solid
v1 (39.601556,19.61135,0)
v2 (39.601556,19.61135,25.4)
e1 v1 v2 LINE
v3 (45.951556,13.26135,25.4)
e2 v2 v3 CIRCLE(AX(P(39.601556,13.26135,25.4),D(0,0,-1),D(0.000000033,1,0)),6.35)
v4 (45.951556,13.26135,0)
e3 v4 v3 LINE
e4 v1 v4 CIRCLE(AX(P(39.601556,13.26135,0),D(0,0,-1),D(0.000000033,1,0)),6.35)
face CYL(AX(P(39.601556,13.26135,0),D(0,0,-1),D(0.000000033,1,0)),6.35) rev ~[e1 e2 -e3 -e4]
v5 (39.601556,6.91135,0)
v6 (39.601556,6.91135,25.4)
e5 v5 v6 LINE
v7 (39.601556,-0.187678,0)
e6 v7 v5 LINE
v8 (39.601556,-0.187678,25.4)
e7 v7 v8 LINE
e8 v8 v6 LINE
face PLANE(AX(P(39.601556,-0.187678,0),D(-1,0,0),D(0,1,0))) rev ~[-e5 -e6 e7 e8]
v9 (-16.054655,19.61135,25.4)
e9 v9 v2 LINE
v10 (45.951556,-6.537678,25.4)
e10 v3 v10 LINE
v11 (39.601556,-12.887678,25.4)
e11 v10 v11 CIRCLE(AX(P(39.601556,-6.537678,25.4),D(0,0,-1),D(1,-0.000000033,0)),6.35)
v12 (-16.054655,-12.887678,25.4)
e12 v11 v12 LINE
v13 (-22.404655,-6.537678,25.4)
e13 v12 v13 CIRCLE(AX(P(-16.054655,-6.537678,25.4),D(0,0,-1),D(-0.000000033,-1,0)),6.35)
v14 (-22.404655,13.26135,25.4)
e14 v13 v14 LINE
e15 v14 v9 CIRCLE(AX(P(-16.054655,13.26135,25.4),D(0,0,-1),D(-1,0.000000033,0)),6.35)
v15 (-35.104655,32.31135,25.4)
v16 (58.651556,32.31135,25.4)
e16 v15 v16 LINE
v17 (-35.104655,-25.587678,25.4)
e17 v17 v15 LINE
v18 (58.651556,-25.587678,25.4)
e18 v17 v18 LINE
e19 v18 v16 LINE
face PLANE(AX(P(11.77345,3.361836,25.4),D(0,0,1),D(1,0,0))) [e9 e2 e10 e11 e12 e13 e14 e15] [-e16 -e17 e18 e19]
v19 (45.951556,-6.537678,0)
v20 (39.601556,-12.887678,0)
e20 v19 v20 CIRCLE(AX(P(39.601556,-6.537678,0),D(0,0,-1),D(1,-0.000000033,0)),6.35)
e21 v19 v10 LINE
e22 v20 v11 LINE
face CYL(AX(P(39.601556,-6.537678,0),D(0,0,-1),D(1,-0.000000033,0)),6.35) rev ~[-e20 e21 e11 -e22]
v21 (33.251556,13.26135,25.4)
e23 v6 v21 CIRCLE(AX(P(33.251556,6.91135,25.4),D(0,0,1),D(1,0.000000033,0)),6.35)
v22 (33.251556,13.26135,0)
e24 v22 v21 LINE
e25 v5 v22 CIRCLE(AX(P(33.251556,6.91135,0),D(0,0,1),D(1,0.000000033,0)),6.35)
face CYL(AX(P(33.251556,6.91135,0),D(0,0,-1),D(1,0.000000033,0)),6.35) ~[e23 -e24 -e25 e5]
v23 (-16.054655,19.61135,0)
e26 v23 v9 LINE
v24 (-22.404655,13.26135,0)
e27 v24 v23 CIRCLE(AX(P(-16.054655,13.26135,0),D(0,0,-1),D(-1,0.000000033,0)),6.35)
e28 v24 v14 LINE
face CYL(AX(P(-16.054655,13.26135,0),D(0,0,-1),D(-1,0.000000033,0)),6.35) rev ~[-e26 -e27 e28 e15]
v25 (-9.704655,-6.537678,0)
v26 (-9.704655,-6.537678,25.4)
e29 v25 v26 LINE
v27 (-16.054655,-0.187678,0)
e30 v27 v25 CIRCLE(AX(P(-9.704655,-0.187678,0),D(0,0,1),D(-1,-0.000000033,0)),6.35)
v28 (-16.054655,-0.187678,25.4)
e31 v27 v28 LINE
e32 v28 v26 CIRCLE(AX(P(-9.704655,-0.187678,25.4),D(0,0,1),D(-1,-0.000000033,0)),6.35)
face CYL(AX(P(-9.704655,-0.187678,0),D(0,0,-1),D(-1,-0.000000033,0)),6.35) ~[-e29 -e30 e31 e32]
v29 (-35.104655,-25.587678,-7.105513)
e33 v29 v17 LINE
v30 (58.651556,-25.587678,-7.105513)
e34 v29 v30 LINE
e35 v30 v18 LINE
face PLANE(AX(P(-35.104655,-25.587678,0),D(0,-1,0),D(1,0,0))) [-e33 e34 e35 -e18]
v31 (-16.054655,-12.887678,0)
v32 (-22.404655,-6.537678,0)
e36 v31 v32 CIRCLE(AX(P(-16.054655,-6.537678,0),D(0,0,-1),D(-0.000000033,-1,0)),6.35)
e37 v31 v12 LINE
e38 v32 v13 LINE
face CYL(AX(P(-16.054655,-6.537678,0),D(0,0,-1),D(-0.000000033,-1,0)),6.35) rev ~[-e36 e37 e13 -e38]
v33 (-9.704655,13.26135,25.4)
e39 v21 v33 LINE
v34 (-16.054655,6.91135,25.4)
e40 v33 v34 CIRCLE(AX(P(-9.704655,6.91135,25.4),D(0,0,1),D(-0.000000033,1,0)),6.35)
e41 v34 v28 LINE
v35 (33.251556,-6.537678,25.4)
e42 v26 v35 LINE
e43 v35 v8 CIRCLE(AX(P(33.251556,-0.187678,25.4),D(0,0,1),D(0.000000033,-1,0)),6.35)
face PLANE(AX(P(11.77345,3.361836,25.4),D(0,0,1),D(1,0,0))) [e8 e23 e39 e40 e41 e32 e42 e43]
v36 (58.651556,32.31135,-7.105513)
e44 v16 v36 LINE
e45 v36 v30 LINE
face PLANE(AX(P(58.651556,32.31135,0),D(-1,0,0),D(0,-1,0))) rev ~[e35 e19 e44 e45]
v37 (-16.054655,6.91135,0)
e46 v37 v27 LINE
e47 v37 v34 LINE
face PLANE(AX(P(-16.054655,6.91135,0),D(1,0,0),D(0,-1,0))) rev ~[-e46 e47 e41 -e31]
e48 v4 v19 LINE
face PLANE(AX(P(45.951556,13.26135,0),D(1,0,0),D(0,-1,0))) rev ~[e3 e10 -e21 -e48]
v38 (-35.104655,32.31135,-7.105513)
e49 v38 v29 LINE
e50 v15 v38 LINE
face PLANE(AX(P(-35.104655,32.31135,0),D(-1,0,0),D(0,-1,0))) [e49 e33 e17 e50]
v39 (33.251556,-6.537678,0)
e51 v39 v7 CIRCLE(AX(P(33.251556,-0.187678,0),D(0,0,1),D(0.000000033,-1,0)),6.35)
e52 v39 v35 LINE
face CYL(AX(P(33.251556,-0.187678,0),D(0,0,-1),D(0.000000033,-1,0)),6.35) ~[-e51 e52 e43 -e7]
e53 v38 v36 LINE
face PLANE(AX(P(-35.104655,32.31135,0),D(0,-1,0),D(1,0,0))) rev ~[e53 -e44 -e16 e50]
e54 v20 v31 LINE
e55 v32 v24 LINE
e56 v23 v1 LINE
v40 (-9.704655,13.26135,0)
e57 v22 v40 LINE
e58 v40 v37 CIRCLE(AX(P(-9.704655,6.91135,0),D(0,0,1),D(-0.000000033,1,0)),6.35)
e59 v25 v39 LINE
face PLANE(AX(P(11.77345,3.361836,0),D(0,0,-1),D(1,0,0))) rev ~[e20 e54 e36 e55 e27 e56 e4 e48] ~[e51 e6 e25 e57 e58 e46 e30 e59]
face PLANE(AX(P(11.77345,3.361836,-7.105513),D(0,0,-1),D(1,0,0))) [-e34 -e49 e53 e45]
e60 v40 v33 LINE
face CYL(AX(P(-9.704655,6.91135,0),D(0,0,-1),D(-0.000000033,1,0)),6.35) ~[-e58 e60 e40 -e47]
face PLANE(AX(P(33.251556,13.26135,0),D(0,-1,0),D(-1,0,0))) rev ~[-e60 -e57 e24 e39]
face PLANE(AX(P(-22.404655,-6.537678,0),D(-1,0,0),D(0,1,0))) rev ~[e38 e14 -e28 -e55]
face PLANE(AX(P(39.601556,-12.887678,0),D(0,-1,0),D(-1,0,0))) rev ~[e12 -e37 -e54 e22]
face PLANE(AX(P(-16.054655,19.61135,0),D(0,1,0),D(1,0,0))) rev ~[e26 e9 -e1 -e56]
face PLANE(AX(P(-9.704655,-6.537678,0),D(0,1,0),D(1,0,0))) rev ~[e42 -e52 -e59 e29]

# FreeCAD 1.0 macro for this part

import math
import FreeCAD as App
import Part
import Sketcher

V = App.Vector
Q = App.Units.Quantity

doc = App.newDocument("Part")
body = doc.addObject("PartDesign::Body", "Body")

# Sketch on XY plane
sketch1 = body.newObject("Sketcher::SketchObject", "Sketch")
sketch1.AttachmentSupport = (doc.getObject("XY_Plane"), [""])
sketch1.MapMode = "FlatFace"
sketch1.addGeometry([
    Part.LineSegment(V(-35.104655, 32.31135, 0), V(-35.104655, -25.587678, 0)),  # 0
    Part.LineSegment(V(-35.104655, -25.587678, 0), V(58.651556, -25.587678, 0)),  # 1
    Part.LineSegment(V(58.651556, -25.587678, 0), V(58.651556, 32.31135, 0)),  # 2
    Part.LineSegment(V(58.651556, 32.31135, 0), V(-35.104655, 32.31135, 0)),  # 3
    Part.ArcOfCircle(Part.Circle(V(39.601556, -6.537678, 0), V(0, 0, 1), 6.35), math.radians(-89.999998), math.radians(-0.000002)),  # 4
    Part.LineSegment(V(39.601556, -12.887678, 0), V(-16.054655, -12.887678, 0)),  # 5
    Part.ArcOfCircle(Part.Circle(V(-16.054655, -6.537678, 0), V(0, 0, 1), 6.35), math.radians(-179.999998), math.radians(-90.000002)),  # 6
    Part.LineSegment(V(-22.404655, -6.537678, 0), V(-22.404655, 13.26135, 0)),  # 7
    Part.ArcOfCircle(Part.Circle(V(-16.054655, 13.26135, 0), V(0, 0, 1), 6.35), math.radians(90.000002), math.radians(179.999998)),  # 8
    Part.LineSegment(V(-16.054655, 19.61135, 0), V(39.601556, 19.61135, 0)),  # 9
    Part.ArcOfCircle(Part.Circle(V(39.601556, 13.26135, 0), V(0, 0, 1), 6.35), math.radians(0.000002), math.radians(89.999998)),  # 10
    Part.LineSegment(V(45.951556, 13.26135, 0), V(45.951556, -6.537678, 0)),  # 11
], False)
sketch1.addConstraint([
    Sketcher.Constraint("Coincident", 0, 2, 1, 1),
    Sketcher.Constraint("Coincident", 1, 2, 2, 1),
    Sketcher.Constraint("Coincident", 2, 2, 3, 1),
    Sketcher.Constraint("Coincident", 3, 2, 0, 1),
    Sketcher.Constraint("Tangent", 4, 1, 5, 1),
    Sketcher.Constraint("Tangent", 5, 2, 6, 2),
    Sketcher.Constraint("Tangent", 6, 1, 7, 1),
    Sketcher.Constraint("Tangent", 7, 2, 8, 2),
    Sketcher.Constraint("Tangent", 8, 1, 9, 1),
    Sketcher.Constraint("Tangent", 9, 2, 10, 2),
    Sketcher.Constraint("Tangent", 10, 1, 11, 1),
    Sketcher.Constraint("Tangent", 11, 2, 4, 2),
    Sketcher.Constraint("Vertical", 0),
    Sketcher.Constraint("Horizontal", 1),
    Sketcher.Constraint("Vertical", 2),
    Sketcher.Constraint("Horizontal", 3),
    Sketcher.Constraint("Horizontal", 5),
    Sketcher.Constraint("Vertical", 7),
    Sketcher.Constraint("Horizontal", 9),
    Sketcher.Constraint("Vertical", 11),
    Sketcher.Constraint("Equal", 4, 6),
    Sketcher.Constraint("Equal", 6, 8),
    Sketcher.Constraint("Equal", 8, 10),
    Sketcher.Constraint("Radius", 4, Q("0.25 in")),
    Sketcher.Constraint("DistanceY", 1, 2, 4, 1, Q("0.5 in")),
    Sketcher.Constraint("DistanceX", 0, 2, 6, 1, Q("0.5 in")),
    Sketcher.Constraint("DistanceY", 8, 1, 3, 2, Q("0.5 in")),
    Sketcher.Constraint("DistanceX", 10, 1, 2, 2, Q("0.5 in")),
    Sketcher.Constraint("DistanceX", 1, 1, 1, 2, 93.756211),
    Sketcher.Constraint("DistanceY", 7, 1, 7, 2, 19.799028),
    Sketcher.Constraint("DistanceY", -1, 1, 8, 3, 13.26135),
    Sketcher.Constraint("DistanceX", -1, 1, 4, 3, 39.601556),
])
pad1 = body.newObject("PartDesign::Pad", "Pad")
pad1.Profile = sketch1
pad1.Length = Q("1 in")

# Sketch on XY plane
sketch2 = body.newObject("Sketcher::SketchObject", "Sketch001")
sketch2.AttachmentSupport = (doc.getObject("XY_Plane"), [""])
sketch2.MapMode = "FlatFace"
sketch2.addGeometry([
    Part.LineSegment(V(-35.104655, -25.587678, 0), V(-35.104655, 32.31135, 0)),
    Part.LineSegment(V(-35.104655, 32.31135, 0), V(58.651556, 32.31135, 0)),
    Part.LineSegment(V(58.651556, 32.31135, 0), V(58.651556, -25.587678, 0)),
    Part.LineSegment(V(58.651556, -25.587678, 0), V(-35.104655, -25.587678, 0)),
], False)
sketch2.addConstraint([
    Sketcher.Constraint("Coincident", 0, 2, 1, 1),
    Sketcher.Constraint("Coincident", 1, 2, 2, 1),
    Sketcher.Constraint("Coincident", 2, 2, 3, 1),
    Sketcher.Constraint("Coincident", 3, 2, 0, 1),
    Sketcher.Constraint("Vertical", 0),
    Sketcher.Constraint("Horizontal", 1),
    Sketcher.Constraint("Vertical", 2),
    Sketcher.Constraint("Horizontal", 3),
    Sketcher.Constraint("DistanceX", 1, 1, 1, 2, 93.756211),
    Sketcher.Constraint("DistanceY", 0, 1, 0, 2, 57.899028),
    Sketcher.Constraint("DistanceY", -1, 1, 0, 2, 32.31135),
    Sketcher.Constraint("DistanceX", 0, 2, -1, 1, 35.104655),
])
pad2 = body.newObject("PartDesign::Pad", "Pad001")
pad2.Profile = sketch2
pad2.Length = 7.105513
pad2.Reversed = True

# Sketch on XY plane
sketch3 = body.newObject("Sketcher::SketchObject", "Sketch002")
sketch3.AttachmentSupport = (doc.getObject("XY_Plane"), [""])
sketch3.MapMode = "FlatFace"
sketch3.addGeometry([
    Part.LineSegment(V(-16.054655, 6.91135, 0), V(-16.054655, -0.187678, 0)),  # 0
    Part.ArcOfCircle(Part.Circle(V(-9.704655, -0.187678, 0), V(0, 0, 1), 6.35), math.radians(-179.999998), math.radians(-90.000002)),  # 1
    Part.LineSegment(V(-9.704655, -6.537678, 0), V(33.251556, -6.537678, 0)),  # 2
    Part.ArcOfCircle(Part.Circle(V(33.251556, -0.187678, 0), V(0, 0, 1), 6.35), math.radians(-89.999998), math.radians(-0.000002)),  # 3
    Part.LineSegment(V(39.601556, -0.187678, 0), V(39.601556, 6.91135, 0)),  # 4
    Part.ArcOfCircle(Part.Circle(V(33.251556, 6.91135, 0), V(0, 0, 1), 6.35), math.radians(0.000002), math.radians(89.999998)),  # 5
    Part.LineSegment(V(33.251556, 13.26135, 0), V(-9.704655, 13.26135, 0)),  # 6
    Part.ArcOfCircle(Part.Circle(V(-9.704655, 6.91135, 0), V(0, 0, 1), 6.35), math.radians(90.000002), math.radians(179.999998)),  # 7
], False)
sketch3.addConstraint([
    Sketcher.Constraint("Tangent", 0, 2, 1, 1),
    Sketcher.Constraint("Tangent", 1, 2, 2, 1),
    Sketcher.Constraint("Tangent", 2, 2, 3, 1),
    Sketcher.Constraint("Tangent", 3, 2, 4, 1),
    Sketcher.Constraint("Tangent", 4, 2, 5, 1),
    Sketcher.Constraint("Tangent", 5, 2, 6, 1),
    Sketcher.Constraint("Tangent", 6, 2, 7, 1),
    Sketcher.Constraint("Tangent", 7, 2, 0, 1),
    Sketcher.Constraint("Vertical", 0),
    Sketcher.Constraint("Horizontal", 2),
    Sketcher.Constraint("Vertical", 4),
    Sketcher.Constraint("Horizontal", 6),
    Sketcher.Constraint("Equal", 1, 3),
    Sketcher.Constraint("Equal", 3, 5),
    Sketcher.Constraint("Equal", 5, 7),
    Sketcher.Constraint("Radius", 1, Q("0.25 in")),
    Sketcher.Constraint("DistanceX", 2, 1, 2, 2, 42.956211),
    Sketcher.Constraint("DistanceY", 0, 2, 0, 1, 7.099028),
    Sketcher.Constraint("DistanceY", -1, 1, 5, 3, 6.91135),
    Sketcher.Constraint("DistanceX", 1, 3, -1, 1, 9.704655),
])
pad3 = body.newObject("PartDesign::Pad", "Pad002")
pad3.Profile = sketch3
pad3.Length = Q("1 in")

doc.recompute()
